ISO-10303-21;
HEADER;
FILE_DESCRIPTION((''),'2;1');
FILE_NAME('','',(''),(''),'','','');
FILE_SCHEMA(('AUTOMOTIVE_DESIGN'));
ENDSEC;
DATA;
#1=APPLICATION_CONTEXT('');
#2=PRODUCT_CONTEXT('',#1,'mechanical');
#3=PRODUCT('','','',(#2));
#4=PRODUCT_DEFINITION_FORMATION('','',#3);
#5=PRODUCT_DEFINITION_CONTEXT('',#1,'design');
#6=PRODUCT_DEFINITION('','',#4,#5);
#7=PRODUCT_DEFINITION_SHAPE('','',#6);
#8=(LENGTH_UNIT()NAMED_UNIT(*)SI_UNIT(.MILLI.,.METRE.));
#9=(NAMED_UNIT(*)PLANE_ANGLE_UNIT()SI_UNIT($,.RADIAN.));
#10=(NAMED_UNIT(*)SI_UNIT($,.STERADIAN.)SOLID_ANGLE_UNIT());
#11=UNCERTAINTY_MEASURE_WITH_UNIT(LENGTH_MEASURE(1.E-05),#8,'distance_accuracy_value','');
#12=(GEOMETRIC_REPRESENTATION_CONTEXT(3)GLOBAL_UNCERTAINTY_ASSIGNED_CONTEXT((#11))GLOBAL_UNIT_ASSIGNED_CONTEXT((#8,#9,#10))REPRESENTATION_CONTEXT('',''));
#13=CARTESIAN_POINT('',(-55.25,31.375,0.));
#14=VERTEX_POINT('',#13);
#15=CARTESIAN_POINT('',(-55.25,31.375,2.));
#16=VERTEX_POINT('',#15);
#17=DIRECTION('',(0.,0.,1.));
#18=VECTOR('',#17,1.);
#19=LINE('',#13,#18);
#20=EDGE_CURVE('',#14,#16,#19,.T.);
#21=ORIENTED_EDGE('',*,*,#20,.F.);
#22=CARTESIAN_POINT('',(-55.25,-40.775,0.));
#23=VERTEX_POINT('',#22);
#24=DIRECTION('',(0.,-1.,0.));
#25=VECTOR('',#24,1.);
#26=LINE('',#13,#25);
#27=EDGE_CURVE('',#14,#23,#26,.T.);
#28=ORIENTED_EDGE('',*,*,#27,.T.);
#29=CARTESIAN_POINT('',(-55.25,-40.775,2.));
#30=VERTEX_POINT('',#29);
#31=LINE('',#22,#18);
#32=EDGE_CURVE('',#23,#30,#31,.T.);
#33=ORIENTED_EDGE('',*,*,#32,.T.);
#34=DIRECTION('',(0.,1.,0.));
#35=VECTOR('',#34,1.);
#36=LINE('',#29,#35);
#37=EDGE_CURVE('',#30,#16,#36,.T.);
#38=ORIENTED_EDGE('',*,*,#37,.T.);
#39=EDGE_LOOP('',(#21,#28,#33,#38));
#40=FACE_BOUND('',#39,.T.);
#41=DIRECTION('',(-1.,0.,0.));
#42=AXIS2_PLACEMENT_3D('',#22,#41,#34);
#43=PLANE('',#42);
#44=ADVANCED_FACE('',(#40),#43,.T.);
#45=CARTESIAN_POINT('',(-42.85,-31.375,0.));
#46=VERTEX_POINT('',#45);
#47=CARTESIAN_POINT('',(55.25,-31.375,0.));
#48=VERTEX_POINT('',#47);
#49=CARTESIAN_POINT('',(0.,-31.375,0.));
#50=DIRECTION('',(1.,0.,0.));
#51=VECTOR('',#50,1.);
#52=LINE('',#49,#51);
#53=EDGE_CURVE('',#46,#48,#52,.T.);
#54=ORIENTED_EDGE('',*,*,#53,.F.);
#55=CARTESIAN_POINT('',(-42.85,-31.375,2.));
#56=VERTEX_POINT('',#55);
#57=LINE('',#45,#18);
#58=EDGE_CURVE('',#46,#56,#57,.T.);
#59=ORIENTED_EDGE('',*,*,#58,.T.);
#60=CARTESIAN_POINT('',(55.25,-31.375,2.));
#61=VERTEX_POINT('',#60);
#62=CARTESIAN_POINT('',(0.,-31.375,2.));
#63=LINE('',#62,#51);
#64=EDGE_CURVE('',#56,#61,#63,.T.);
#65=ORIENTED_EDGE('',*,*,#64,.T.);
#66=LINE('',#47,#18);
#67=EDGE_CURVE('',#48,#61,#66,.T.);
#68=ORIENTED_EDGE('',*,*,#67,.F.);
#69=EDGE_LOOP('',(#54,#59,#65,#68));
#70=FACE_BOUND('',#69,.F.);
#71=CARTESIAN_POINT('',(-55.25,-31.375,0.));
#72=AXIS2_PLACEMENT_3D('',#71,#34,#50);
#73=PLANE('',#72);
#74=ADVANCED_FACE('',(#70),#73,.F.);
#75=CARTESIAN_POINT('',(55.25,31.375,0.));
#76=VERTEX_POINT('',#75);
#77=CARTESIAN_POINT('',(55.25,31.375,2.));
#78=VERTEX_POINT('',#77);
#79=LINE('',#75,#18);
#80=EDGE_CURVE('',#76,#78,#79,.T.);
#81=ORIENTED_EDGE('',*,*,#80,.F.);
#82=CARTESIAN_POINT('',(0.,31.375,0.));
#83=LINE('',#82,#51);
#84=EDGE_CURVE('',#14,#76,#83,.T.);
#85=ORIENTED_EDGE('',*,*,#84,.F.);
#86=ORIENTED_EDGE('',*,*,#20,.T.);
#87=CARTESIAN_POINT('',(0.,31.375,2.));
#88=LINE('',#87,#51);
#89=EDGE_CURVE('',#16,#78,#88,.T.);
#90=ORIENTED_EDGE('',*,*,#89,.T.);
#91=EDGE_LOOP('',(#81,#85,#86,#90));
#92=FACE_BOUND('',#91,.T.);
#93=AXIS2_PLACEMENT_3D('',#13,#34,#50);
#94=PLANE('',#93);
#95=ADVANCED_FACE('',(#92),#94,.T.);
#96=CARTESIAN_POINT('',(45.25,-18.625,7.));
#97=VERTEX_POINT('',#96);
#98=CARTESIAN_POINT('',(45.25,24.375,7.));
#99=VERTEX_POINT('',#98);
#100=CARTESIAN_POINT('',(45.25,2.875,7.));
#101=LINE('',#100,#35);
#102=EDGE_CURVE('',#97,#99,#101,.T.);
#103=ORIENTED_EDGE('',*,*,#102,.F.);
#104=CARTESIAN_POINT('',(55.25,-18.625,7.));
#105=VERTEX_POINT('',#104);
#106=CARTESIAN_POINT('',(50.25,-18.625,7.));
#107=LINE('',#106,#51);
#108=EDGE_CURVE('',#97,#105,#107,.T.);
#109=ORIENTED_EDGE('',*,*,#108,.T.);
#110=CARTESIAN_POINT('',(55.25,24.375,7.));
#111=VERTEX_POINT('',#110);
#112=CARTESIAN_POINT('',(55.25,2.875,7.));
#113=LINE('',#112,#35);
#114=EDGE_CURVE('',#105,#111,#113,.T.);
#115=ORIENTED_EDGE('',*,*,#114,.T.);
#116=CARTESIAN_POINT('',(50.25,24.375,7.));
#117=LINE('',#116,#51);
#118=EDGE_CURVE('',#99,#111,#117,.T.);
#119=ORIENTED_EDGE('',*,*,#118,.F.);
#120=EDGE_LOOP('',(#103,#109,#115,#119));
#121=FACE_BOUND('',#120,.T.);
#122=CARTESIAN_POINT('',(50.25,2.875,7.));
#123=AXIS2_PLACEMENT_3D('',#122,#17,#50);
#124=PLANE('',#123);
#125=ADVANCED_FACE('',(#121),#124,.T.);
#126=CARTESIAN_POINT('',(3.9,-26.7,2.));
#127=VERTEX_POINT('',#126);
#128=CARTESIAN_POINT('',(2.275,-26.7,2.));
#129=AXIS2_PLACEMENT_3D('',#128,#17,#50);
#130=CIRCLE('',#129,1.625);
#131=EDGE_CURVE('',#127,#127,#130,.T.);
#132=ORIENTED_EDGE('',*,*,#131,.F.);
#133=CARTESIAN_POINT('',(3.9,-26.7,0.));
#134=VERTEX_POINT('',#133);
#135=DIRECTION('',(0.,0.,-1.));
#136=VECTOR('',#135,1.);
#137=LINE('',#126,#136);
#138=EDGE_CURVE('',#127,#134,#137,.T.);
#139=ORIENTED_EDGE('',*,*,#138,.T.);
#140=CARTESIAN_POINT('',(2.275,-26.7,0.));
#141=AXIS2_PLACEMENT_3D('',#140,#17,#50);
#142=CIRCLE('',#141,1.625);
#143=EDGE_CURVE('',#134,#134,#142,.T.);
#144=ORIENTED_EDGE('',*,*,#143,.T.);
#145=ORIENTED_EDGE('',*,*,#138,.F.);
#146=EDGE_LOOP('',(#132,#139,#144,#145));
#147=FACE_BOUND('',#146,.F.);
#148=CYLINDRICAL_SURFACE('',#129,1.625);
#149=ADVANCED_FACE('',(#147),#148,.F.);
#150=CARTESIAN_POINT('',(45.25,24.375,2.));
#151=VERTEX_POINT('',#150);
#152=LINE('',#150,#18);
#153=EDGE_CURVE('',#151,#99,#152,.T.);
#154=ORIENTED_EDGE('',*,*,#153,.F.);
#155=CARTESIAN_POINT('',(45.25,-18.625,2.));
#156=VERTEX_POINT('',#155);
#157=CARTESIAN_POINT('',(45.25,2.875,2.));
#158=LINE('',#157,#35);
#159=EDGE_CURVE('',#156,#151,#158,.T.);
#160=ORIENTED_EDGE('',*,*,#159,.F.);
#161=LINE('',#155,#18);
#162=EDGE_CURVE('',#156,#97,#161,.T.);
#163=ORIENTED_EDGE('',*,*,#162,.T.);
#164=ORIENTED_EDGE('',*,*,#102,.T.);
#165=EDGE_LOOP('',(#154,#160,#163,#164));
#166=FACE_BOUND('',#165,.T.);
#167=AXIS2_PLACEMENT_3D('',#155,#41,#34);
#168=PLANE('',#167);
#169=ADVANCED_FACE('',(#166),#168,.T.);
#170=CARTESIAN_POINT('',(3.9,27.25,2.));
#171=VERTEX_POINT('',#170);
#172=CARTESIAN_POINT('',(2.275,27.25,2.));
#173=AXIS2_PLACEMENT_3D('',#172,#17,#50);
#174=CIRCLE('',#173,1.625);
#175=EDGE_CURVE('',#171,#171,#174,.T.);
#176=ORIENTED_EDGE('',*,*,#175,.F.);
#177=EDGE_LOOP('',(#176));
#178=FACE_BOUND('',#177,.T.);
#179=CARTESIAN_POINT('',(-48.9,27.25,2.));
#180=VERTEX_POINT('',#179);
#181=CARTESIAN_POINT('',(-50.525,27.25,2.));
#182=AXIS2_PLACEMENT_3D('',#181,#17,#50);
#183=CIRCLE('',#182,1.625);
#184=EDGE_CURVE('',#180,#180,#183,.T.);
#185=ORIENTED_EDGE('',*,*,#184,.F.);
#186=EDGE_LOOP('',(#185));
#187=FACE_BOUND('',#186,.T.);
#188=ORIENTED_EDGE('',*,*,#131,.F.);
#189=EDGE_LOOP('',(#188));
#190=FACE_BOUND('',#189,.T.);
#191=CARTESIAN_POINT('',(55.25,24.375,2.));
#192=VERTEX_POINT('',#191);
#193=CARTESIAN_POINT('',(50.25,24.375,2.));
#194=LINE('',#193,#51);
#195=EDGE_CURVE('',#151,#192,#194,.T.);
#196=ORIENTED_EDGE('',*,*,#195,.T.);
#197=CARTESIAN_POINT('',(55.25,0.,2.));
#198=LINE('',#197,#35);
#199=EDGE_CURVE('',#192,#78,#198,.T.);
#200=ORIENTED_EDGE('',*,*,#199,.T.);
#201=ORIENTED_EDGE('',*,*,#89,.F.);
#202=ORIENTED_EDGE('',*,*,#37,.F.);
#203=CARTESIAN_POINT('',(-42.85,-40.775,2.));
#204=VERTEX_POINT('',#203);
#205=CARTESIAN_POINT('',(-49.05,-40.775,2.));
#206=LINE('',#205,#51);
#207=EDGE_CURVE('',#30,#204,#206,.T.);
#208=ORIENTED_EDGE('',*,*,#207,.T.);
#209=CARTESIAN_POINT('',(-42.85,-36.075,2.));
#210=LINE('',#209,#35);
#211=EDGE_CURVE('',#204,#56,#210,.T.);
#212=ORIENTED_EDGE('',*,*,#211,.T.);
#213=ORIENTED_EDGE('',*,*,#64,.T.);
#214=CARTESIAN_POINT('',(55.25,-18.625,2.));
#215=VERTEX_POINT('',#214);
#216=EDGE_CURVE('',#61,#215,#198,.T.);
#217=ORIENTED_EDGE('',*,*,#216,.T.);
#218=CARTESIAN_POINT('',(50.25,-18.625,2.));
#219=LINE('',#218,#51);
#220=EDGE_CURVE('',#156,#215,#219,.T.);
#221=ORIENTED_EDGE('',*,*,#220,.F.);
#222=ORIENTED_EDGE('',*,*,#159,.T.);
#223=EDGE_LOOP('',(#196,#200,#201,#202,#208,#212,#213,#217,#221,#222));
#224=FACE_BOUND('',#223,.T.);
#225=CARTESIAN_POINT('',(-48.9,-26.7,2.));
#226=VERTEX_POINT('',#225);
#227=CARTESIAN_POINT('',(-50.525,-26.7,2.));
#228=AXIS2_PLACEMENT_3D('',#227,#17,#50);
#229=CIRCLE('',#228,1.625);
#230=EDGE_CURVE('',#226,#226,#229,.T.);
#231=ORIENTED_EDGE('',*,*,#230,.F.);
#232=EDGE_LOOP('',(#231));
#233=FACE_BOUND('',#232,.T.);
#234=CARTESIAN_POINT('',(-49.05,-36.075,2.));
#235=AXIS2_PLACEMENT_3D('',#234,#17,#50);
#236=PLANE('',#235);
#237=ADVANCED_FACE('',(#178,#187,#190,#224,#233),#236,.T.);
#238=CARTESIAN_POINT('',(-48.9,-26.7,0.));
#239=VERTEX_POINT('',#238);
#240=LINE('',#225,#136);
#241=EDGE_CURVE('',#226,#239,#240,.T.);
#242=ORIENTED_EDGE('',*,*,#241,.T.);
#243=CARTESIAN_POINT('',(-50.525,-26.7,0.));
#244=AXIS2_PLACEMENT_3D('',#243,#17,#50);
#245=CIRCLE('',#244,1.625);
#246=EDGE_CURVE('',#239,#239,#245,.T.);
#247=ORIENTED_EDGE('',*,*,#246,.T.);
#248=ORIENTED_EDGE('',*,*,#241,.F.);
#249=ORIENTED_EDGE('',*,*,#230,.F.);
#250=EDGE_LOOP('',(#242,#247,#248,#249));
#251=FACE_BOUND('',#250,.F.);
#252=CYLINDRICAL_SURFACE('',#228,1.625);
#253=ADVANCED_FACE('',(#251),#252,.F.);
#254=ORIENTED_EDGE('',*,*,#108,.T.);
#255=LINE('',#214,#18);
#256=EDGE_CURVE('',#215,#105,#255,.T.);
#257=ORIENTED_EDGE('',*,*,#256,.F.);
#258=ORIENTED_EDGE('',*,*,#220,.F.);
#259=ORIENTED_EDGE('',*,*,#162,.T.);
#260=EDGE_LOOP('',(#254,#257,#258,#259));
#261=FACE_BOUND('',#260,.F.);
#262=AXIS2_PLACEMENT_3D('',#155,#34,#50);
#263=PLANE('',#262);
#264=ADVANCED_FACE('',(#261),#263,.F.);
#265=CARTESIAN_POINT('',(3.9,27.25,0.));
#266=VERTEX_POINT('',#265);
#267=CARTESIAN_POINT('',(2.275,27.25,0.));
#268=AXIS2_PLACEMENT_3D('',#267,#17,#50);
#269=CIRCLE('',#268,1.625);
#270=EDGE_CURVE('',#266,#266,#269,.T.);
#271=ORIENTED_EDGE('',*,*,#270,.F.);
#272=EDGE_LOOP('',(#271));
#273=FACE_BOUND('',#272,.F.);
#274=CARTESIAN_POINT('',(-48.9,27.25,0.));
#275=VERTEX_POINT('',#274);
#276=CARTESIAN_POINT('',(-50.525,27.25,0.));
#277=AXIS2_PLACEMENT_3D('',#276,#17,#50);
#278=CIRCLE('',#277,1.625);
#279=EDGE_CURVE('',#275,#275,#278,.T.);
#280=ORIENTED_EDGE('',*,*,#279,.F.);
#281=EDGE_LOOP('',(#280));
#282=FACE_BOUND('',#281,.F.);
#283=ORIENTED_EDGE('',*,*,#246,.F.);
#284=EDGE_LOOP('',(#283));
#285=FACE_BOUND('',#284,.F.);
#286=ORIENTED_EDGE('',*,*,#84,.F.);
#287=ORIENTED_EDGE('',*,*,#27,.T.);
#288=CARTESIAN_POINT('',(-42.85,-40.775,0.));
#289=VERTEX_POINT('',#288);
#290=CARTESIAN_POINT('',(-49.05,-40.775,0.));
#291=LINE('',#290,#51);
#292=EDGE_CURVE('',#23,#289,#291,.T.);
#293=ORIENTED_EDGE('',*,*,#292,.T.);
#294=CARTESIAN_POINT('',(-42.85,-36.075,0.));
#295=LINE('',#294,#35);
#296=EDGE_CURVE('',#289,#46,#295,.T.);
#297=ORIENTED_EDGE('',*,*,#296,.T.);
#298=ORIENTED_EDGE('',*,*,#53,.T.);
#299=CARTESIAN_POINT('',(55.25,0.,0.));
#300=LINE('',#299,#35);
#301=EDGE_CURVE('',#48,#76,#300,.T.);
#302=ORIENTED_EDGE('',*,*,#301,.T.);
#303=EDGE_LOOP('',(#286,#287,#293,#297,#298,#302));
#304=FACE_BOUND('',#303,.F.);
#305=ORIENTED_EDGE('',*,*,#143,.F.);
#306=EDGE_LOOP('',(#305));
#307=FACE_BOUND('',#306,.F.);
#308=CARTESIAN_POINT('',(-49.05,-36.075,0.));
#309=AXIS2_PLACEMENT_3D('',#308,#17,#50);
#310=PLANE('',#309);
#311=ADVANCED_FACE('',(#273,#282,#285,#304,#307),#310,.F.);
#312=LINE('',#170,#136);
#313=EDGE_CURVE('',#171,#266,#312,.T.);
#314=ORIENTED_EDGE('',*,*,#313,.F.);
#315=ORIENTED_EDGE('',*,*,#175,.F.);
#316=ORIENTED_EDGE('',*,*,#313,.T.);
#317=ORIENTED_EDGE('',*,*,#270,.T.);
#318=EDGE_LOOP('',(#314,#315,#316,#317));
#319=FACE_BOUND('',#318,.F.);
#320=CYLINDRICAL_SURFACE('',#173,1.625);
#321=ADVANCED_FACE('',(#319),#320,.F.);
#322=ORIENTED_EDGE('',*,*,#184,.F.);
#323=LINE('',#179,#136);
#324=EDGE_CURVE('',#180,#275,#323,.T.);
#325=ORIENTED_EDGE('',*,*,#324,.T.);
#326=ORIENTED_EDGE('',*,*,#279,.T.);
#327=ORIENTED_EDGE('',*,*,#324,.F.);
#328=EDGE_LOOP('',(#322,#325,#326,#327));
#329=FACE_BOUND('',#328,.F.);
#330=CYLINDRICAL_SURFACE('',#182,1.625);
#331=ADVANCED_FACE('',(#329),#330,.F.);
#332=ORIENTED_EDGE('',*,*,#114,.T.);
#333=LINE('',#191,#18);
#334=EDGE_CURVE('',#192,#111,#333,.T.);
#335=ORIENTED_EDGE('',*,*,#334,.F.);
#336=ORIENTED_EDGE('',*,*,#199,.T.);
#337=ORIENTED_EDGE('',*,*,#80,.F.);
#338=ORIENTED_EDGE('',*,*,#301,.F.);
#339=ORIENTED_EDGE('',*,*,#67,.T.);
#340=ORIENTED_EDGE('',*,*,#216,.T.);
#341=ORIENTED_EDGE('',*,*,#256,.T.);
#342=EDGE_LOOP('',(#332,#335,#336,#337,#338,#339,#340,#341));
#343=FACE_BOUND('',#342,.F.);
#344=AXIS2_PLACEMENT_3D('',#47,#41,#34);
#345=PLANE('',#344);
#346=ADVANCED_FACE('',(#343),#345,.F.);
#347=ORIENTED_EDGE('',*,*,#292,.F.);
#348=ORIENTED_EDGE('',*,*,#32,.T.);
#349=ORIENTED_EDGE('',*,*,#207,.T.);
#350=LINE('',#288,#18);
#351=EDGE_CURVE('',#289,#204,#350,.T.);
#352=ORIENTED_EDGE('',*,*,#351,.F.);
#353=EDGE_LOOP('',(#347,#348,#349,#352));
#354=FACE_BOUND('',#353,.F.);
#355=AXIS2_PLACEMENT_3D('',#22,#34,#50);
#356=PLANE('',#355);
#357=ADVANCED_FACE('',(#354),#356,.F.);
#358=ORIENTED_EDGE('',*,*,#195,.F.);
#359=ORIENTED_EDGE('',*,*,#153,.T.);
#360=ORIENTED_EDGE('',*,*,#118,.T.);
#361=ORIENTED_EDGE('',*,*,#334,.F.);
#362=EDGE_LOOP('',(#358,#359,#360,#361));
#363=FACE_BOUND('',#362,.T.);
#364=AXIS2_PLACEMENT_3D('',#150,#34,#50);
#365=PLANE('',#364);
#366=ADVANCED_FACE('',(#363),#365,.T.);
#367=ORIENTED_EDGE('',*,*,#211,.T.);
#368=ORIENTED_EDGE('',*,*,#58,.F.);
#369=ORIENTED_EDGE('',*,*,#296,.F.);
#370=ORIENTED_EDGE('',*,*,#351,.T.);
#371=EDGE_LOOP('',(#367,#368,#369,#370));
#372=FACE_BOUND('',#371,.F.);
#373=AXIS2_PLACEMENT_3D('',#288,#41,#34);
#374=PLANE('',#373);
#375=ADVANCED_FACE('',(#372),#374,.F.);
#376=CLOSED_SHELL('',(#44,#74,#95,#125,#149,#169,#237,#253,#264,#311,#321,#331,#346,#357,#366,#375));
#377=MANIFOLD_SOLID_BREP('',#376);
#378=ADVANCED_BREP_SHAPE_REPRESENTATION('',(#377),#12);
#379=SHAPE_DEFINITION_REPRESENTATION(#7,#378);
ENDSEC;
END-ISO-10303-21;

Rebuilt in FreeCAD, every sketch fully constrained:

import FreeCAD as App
import Part
import Sketcher
Q = App.Units.Quantity


def add_polygon(sketch, points):
    """Adds a closed chain of lines whose ends are joined by coincident constraints."""
    first, n = sketch.GeometryCount, len(points)
    for a, b in zip(points, points[1:] + points[:1]):
        sketch.addGeometry(Part.LineSegment(App.Vector(*a, 0), App.Vector(*b, 0)), False)
    for i in range(n):
        sketch.addConstraint(Sketcher.Constraint("Coincident", first + i, 2, first + (i + 1) % n, 1))

doc = App.newDocument("Part")
params = doc.addObject("Spreadsheet::Sheet", "Params")
for row, (alias, value) in enumerate([
    ("sketch1_width", "110.5 mm"),
    ("sketch1_height", "62.75 mm"),
    ("pad1_length", "2 mm"),
    ("sketch2_width", "12.4 mm"),
    ("sketch2_height", "9.4 mm"),
    ("pad2_length", "2 mm"),
    ("sketch3_diameter", "3.25 mm"),
    ("sketch4_width", "10 mm"),
    ("sketch4_height", "43 mm"),
    ("pad3_length", "5 mm"),
], start=1):
    params.set(f"A{row}", alias)
    params.set(f"B{row}", "=" + value)
    params.setAlias(f"B{row}", alias)

body = doc.addObject("PartDesign::Body", "Body")

sketch1 = body.newObject("Sketcher::SketchObject", "Sketch")
sketch1.AttachmentSupport = (doc.getObject("XY_Plane"), [""])
sketch1.MapMode = "FlatFace"
add_polygon(sketch1, [(-55, 31), (-55, -31), (55, -31), (55, 31)])
sketch1.addConstraint([
    Sketcher.Constraint("Vertical", 0),
    Sketcher.Constraint("Horizontal", 1),
    Sketcher.Constraint("Vertical", 2),
    Sketcher.Constraint("Horizontal", 3),
    Sketcher.Constraint("Symmetric", 0, 2, 2, 2, -1, 1),
    Sketcher.Constraint("DistanceX", 1, 1, 1, 2, Q("110.5 mm")),
    Sketcher.Constraint("DistanceY", 0, 2, 0, 1, Q("62.75 mm")),
])
sketch1.setExpression("Constraints[9]", "Params.sketch1_width")
sketch1.setExpression("Constraints[10]", "Params.sketch1_height")
pad1 = body.newObject("PartDesign::Pad", "Pad")
pad1.Profile = sketch1
pad1.setExpression("Length", "Params.pad1_length")

sketch2 = body.newObject("Sketcher::SketchObject", "Sketch001")
sketch2.AttachmentSupport = (doc.getObject("XY_Plane"), [""])
sketch2.MapMode = "FlatFace"
add_polygon(sketch2, [(-55, -31), (-55, -41), (-43, -41), (-43, -31)])
sketch2.addConstraint([
    Sketcher.Constraint("Vertical", 0),
    Sketcher.Constraint("Horizontal", 1),
    Sketcher.Constraint("Vertical", 2),
    Sketcher.Constraint("Horizontal", 3),
    Sketcher.Constraint("DistanceX", 1, 1, 1, 2, Q("12.4 mm")),
    Sketcher.Constraint("DistanceY", 0, 2, 0, 1, Q("9.4 mm")),
    Sketcher.Constraint("DistanceX", 0, 2, -1, 1, Q("55.25 mm")),
    Sketcher.Constraint("DistanceY", 0, 2, -1, 1, Q("40.775 mm")),
])
sketch2.setExpression("Constraints[8]", "Params.sketch2_width")
sketch2.setExpression("Constraints[9]", "Params.sketch2_height")
pad2 = body.newObject("PartDesign::Pad", "Pad001")
pad2.Profile = sketch2
pad2.setExpression("Length", "Params.pad2_length")

sketch3 = body.newObject("Sketcher::SketchObject", "Sketch002")
sketch3.AttachmentSupport = (doc.getObject("XY_Plane"), [""])
sketch3.MapMode = "FlatFace"
sketch3.AttachmentOffset = App.Placement(App.Vector(0, 0, 2), App.Rotation())
sketch3.addGeometry([
    Part.Circle(App.Vector(-50.5, 27.2, 0), App.Vector(0, 0, 1), 1.6),
    Part.Circle(App.Vector(2.3, 27.2, 0), App.Vector(0, 0, 1), 1.6),
    Part.Circle(App.Vector(2.3, -26.7, 0), App.Vector(0, 0, 1), 1.6),
    Part.Circle(App.Vector(-50.5, -26.7, 0), App.Vector(0, 0, 1), 1.6),
], False)
sketch3.addConstraint([
    Sketcher.Constraint("Equal", 0, 1),
    Sketcher.Constraint("Equal", 1, 2),
    Sketcher.Constraint("Equal", 2, 3),
    Sketcher.Constraint("Horizontal", 0, 3, 1, 3),
    Sketcher.Constraint("Horizontal", 2, 3, 3, 3),
    Sketcher.Constraint("Vertical", 1, 3, 2, 3),
    Sketcher.Constraint("Vertical", 0, 3, 3, 3),
    Sketcher.Constraint("Diameter", 0, Q("3.25 mm")),
    Sketcher.Constraint("DistanceY", 2, 3, -1, 1, Q("26.7 mm")),
    Sketcher.Constraint("DistanceX", 0, 3, 1, 3, Q("52.8 mm")),
    Sketcher.Constraint("DistanceY", -1, 1, 0, 3, Q("27.25 mm")),
    Sketcher.Constraint("DistanceX", 0, 3, -1, 1, Q("50.525 mm")),
])
sketch3.setExpression("Constraints[7]", "Params.sketch3_diameter")
pocket1 = body.newObject("PartDesign::Pocket", "Pocket")
pocket1.Profile = sketch3
pocket1.Type = "ThroughAll"

sketch4 = body.newObject("Sketcher::SketchObject", "Sketch003")
sketch4.AttachmentSupport = (doc.getObject("XY_Plane"), [""])
sketch4.MapMode = "FlatFace"
sketch4.AttachmentOffset = App.Placement(App.Vector(0, 0, 2), App.Rotation())
add_polygon(sketch4, [(45, 24), (45, -19), (55, -19), (55, 24)])
sketch4.addConstraint([
    Sketcher.Constraint("Vertical", 0),
    Sketcher.Constraint("Horizontal", 1),
    Sketcher.Constraint("Vertical", 2),
    Sketcher.Constraint("Horizontal", 3),
    Sketcher.Constraint("DistanceX", 1, 1, 1, 2, Q("10 mm")),
    Sketcher.Constraint("DistanceY", 0, 2, 0, 1, Q("43 mm")),
    Sketcher.Constraint("DistanceX", -1, 1, 0, 2, Q("45.25 mm")),
    Sketcher.Constraint("DistanceY", 0, 2, -1, 1, Q("18.625 mm")),
])
sketch4.setExpression("Constraints[8]", "Params.sketch4_width")
sketch4.setExpression("Constraints[9]", "Params.sketch4_height")
pad3 = body.newObject("PartDesign::Pad", "Pad002")
pad3.Profile = sketch4
pad3.setExpression("Length", "Params.pad3_length")

doc.recompute()
